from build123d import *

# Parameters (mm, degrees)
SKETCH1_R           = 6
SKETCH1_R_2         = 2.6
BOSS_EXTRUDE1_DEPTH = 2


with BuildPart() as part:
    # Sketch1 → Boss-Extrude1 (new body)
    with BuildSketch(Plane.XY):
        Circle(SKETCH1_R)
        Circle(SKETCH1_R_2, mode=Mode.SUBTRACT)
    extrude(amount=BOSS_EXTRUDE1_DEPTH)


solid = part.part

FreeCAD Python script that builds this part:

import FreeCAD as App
import Part
import Sketcher
from FreeCAD import Vector
Q = App.Units.Quantity

doc = App.newDocument("Part")
params = doc.addObject("Spreadsheet::Sheet", "Params")
for row, (alias, value) in enumerate([
    ("sketch1_diameter", "12 mm"),
    ("sketch1_diameter2", "5.2 mm"),
    ("pad1_length", "2 mm"),
], start=1):
    params.set(f"A{row}", alias)
    params.set(f"B{row}", "=" + value)
    params.setAlias(f"B{row}", alias)

body = doc.addObject("PartDesign::Body", "Body")

# Sketch on XY plane
sketch1 = doc.addObject("Sketcher::SketchObject", "Sketch")
body.addObject(sketch1)
sketch1.AttachmentSupport = (doc.XY_Plane, [""])
sketch1.MapMode = "FlatFace"
sketch1.addGeometry([
    Part.Circle(Vector(0, 0, 0), Vector(0, 0, 1), 6),
    Part.Circle(Vector(0, 0, 0), Vector(0, 0, 1), 2.6),
], False)
sketch1.addConstraint([
    Sketcher.Constraint("Coincident", 0, 3, -1, 1),
    Sketcher.Constraint("Coincident", 1, 3, -1, 1),
    Sketcher.Constraint("Diameter", 0, Q("12 mm")),
    Sketcher.Constraint("Diameter", 1, Q("5.2 mm")),
])
sketch1.setExpression("Constraints[2]", "Params.sketch1_diameter")
sketch1.setExpression("Constraints[3]", "Params.sketch1_diameter2")
pad1 = doc.addObject("PartDesign::Pad", "Pad")
body.addObject(pad1)
pad1.Profile = sketch1
pad1.setExpression("Length", "Params.pad1_length")

doc.recompute()
